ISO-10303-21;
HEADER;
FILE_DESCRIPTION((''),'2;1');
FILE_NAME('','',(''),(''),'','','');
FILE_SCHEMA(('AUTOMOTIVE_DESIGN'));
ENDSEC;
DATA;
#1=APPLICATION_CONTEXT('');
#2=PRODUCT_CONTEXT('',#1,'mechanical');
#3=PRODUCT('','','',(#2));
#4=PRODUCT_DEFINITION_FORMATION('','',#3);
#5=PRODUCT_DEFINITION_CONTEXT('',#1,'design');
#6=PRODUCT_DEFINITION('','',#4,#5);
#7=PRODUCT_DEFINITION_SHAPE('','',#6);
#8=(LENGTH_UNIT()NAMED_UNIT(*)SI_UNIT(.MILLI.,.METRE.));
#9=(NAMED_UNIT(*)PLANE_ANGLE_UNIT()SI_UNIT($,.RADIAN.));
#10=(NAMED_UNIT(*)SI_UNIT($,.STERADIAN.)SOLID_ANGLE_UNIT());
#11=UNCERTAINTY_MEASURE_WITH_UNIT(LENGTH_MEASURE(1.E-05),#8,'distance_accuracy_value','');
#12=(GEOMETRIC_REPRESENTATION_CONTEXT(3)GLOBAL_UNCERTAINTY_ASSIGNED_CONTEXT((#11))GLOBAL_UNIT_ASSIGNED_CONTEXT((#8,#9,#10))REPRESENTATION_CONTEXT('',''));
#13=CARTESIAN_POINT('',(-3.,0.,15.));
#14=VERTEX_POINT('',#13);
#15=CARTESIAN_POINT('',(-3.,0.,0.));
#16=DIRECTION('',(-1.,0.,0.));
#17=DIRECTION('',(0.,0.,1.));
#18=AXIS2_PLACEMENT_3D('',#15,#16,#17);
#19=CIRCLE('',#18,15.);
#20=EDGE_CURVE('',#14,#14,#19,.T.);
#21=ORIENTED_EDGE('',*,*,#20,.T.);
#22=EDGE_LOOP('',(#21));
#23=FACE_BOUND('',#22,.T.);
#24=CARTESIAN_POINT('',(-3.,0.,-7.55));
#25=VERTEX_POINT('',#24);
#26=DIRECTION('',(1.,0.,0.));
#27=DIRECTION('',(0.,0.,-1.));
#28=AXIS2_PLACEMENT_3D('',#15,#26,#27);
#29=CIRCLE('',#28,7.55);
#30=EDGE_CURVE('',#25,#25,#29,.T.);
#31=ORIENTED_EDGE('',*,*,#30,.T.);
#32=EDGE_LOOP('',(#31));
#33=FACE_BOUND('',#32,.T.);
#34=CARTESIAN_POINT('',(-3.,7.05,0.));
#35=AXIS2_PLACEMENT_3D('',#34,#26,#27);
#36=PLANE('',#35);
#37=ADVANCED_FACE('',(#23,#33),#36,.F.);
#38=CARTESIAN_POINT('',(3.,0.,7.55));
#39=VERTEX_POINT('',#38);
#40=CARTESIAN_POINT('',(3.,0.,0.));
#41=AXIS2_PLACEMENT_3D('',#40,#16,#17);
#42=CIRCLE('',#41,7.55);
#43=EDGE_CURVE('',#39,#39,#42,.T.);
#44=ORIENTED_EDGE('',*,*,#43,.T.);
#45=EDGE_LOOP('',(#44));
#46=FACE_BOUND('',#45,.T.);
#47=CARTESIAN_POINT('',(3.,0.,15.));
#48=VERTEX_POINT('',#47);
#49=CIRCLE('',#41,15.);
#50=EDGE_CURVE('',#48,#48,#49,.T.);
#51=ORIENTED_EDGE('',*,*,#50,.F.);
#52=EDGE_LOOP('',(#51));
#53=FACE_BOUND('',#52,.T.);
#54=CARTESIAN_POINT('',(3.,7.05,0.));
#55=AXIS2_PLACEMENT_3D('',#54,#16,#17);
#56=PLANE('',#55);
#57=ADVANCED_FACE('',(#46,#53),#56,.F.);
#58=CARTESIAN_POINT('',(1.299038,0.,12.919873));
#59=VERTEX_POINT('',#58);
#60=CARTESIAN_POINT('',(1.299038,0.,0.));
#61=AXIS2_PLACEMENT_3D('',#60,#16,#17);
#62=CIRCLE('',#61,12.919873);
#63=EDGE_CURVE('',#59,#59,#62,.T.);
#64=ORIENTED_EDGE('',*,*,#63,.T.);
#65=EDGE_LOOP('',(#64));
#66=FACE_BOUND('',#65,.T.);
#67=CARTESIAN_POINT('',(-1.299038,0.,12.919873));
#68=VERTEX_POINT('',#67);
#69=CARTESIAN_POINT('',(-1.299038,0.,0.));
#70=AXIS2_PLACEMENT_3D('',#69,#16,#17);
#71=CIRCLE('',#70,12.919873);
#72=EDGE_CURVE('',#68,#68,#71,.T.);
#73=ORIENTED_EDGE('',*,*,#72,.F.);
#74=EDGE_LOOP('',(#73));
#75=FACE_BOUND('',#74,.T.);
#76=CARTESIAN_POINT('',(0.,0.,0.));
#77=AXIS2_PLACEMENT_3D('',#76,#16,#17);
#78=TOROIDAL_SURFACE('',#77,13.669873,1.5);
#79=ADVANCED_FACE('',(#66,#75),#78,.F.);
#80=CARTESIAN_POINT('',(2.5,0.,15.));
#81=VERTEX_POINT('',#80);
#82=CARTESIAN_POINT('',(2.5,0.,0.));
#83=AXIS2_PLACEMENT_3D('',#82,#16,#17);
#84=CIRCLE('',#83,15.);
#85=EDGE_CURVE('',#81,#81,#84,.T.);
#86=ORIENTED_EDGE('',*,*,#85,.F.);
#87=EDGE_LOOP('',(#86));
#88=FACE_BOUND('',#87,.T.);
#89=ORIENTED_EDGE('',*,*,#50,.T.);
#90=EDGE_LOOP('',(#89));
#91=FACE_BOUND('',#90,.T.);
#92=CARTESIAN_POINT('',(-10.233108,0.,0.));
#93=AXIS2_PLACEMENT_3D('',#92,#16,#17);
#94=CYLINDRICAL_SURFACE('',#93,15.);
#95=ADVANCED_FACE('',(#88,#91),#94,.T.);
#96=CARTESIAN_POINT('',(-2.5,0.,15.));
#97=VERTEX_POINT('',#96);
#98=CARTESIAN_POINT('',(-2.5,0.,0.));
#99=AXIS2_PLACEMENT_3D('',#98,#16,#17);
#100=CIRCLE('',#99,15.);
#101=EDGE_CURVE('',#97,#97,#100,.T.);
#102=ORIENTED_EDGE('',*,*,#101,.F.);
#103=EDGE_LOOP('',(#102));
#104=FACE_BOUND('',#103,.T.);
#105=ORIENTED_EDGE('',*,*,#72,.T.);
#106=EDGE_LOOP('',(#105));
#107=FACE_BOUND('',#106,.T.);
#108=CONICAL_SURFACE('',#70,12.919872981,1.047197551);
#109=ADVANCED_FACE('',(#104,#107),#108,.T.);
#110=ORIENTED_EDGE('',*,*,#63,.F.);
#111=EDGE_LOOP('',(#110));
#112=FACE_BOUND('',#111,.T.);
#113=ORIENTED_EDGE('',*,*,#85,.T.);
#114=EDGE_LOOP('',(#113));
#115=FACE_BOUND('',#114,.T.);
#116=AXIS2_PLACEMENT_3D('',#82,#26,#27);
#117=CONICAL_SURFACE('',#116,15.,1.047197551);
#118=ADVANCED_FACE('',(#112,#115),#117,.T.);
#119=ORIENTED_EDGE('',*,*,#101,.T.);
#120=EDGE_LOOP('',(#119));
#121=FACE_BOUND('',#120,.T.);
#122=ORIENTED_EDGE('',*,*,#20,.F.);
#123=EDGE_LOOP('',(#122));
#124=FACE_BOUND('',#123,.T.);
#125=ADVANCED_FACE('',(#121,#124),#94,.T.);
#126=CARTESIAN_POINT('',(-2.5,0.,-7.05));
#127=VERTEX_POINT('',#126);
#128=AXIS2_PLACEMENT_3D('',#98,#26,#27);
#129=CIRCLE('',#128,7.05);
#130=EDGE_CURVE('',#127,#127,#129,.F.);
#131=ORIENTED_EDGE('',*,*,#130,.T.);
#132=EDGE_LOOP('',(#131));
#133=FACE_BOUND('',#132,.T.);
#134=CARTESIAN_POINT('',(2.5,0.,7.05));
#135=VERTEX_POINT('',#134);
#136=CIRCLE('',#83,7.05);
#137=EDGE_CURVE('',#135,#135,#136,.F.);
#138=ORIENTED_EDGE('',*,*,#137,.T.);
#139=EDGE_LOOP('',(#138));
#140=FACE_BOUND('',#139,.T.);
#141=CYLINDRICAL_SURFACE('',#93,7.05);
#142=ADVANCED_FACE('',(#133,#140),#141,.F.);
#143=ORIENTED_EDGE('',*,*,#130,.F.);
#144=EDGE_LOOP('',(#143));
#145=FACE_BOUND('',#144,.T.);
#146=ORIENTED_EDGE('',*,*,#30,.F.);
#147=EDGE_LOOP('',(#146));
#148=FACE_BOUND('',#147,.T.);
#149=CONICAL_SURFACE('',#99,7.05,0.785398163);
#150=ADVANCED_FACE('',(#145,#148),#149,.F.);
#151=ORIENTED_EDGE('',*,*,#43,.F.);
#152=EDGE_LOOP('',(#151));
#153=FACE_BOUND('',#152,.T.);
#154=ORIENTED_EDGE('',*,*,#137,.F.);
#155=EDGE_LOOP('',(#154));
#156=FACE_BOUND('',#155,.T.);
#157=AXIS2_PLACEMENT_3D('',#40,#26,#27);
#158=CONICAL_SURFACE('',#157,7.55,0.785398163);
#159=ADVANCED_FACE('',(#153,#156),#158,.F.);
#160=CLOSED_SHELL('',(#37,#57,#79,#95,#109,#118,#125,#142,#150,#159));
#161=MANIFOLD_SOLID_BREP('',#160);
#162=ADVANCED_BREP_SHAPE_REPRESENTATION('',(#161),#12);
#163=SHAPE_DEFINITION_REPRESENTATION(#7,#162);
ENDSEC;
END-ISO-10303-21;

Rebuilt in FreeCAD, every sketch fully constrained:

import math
import FreeCAD as App
import Part
import Sketcher
from FreeCAD import Vector
Q = App.Units.Quantity


def edges_at(feature, points):
    """Names of the edges that pass closest to the given points."""
    edges = feature.Shape.Edges
    near = lambda p: min(range(len(edges)), key=lambda i: edges[i].distToShape(Part.Vertex(*p))[0])
    return sorted({f"Edge{near(p) + 1}" for p in points})

doc = App.newDocument("Part")
body = doc.addObject("PartDesign::Body", "Body")

# Sketch on XY plane
sketch1 = body.newObject("Sketcher::SketchObject", "Sketch")
sketch1.AttachmentSupport = (doc.getObject("XY_Plane"), [""])
sketch1.MapMode = "FlatFace"
sketch1.addGeometry([
    Part.LineSegment(Vector(-3, 7, 0), Vector(3, 7, 0)),  # 0
    Part.LineSegment(Vector(3, 7, 0), Vector(3, 15, 0)),  # 1
    Part.LineSegment(Vector(3, 15, 0), Vector(2.5, 15, 0)),  # 2
    Part.LineSegment(Vector(2.5, 15, 0), Vector(1.3, 12.9, 0)),  # 3
    Part.ArcOfCircle(Part.Circle(Vector(0, 13.7, 0), Vector(0, 0, 1), 1.5), math.radians(-150), math.radians(-30)),  # 4
    Part.LineSegment(Vector(-1.3, 12.9, 0), Vector(-2.5, 15, 0)),  # 5
    Part.LineSegment(Vector(-2.5, 15, 0), Vector(-3, 15, 0)),  # 6
    Part.LineSegment(Vector(-3, 15, 0), Vector(-3, 7, 0)),  # 7
], False)
sketch1.addConstraint([
    Sketcher.Constraint("Coincident", 0, 2, 1, 1),
    Sketcher.Constraint("Coincident", 1, 2, 2, 1),
    Sketcher.Constraint("Coincident", 2, 2, 3, 1),
    Sketcher.Constraint("Tangent", 3, 2, 4, 2),
    Sketcher.Constraint("Tangent", 4, 1, 5, 1),
    Sketcher.Constraint("Coincident", 5, 2, 6, 1),
    Sketcher.Constraint("Coincident", 6, 2, 7, 1),
    Sketcher.Constraint("Coincident", 7, 2, 0, 1),
    Sketcher.Constraint("Horizontal", 0),
    Sketcher.Constraint("Vertical", 1),
    Sketcher.Constraint("Horizontal", 2),
    Sketcher.Constraint("Horizontal", 6),
    Sketcher.Constraint("Vertical", 7),
    Sketcher.Constraint("Symmetric", 3, 2, 4, 1, -2),
    Sketcher.Constraint("Symmetric", 1, 2, 6, 2, -2),
    Sketcher.Constraint("Radius", 4, Q("1.5 mm")),
    Sketcher.Constraint("DistanceX", 0, 1, 0, 2, Q("6 mm")),
    Sketcher.Constraint("Angle", 3, Q("-120 deg")),
    Sketcher.Constraint("DistanceX", 2, 2, 2, 1, Q("0.5 mm")),
    Sketcher.Constraint("DistanceY", -1, 1, 1, 2, Q("15 mm")),
    Sketcher.Constraint("DistanceY", 1, 1, 1, 2, Q("7.95 mm")),
])
revolution = body.newObject("PartDesign::Revolution", "Revolution")
revolution.Profile = sketch1
revolution.ReferenceAxis = (sketch1, ["H_Axis"])
revolution.Angle = 360
doc.recompute()

chamfer = body.newObject("PartDesign::Chamfer", "Chamfer")
chamfer.Base = (revolution, edges_at(revolution, [(3, 0, -7.05), (-3, 0, -7.05)]))
chamfer.Size = 0.5

doc.recompute()
